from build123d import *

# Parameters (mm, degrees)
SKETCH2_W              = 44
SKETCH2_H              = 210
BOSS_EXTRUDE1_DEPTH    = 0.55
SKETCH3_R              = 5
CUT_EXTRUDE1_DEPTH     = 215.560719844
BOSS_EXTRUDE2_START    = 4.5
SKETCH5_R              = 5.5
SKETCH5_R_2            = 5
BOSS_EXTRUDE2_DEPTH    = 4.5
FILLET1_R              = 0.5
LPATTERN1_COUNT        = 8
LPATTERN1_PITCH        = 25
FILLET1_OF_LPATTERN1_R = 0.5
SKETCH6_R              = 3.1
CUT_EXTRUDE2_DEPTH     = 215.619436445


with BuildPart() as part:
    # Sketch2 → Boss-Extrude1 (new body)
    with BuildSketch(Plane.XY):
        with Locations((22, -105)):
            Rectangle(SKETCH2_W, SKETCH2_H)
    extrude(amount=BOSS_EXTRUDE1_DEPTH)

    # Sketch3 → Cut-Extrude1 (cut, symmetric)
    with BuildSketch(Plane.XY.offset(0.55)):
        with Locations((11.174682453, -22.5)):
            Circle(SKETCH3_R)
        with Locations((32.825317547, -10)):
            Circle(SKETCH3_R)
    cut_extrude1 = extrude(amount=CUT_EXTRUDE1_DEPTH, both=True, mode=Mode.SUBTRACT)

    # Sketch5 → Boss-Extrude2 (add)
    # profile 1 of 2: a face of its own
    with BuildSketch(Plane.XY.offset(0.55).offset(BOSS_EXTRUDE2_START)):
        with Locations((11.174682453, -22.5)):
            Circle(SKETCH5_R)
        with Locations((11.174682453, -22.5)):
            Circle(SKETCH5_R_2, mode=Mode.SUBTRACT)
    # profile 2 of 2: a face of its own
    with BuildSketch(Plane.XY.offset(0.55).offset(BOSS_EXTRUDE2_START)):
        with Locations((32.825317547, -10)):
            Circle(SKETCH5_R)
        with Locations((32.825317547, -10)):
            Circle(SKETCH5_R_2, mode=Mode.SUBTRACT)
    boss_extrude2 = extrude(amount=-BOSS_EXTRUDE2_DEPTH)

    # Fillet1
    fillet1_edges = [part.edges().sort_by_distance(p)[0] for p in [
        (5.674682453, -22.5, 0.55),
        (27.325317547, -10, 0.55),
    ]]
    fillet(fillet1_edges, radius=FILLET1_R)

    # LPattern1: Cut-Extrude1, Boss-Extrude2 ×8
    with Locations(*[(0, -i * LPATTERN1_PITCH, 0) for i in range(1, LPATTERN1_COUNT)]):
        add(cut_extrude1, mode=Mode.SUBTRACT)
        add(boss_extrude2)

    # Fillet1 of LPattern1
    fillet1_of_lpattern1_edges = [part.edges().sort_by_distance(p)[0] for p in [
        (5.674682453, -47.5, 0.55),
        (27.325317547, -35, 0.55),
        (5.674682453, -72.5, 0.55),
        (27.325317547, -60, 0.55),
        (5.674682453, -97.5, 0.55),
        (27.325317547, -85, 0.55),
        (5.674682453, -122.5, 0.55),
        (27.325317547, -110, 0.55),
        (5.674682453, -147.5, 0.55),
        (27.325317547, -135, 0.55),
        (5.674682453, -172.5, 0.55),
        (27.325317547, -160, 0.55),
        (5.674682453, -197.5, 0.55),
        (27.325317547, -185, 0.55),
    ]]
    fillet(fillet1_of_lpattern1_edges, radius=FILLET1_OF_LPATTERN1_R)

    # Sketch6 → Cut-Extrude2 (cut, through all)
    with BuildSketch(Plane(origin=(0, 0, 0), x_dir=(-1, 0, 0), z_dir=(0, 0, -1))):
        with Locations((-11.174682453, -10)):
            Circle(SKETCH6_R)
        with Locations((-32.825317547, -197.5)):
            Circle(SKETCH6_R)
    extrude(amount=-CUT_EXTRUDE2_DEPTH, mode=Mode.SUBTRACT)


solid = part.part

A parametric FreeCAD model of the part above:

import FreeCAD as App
import Part
import Sketcher


def edges_at(feature, points):
    """Names of the edges that pass closest to the given points."""
    edges = feature.Shape.Edges
    near = lambda p: min(range(len(edges)), key=lambda i: edges[i].distToShape(Part.Vertex(*p))[0])
    return sorted({f"Edge{near(p) + 1}" for p in points})


def add_polygon(sketch, points):
    """Adds a closed chain of lines whose ends are joined by coincident constraints."""
    first, n = sketch.GeometryCount, len(points)
    for a, b in zip(points, points[1:] + points[:1]):
        sketch.addGeometry(Part.LineSegment(App.Vector(*a, 0), App.Vector(*b, 0)), False)
    for i in range(n):
        sketch.addConstraint(Sketcher.Constraint("Coincident", first + i, 2, first + (i + 1) % n, 1))

doc = App.newDocument("Part")
body = doc.addObject("PartDesign::Body", "Body")

# Sketch on XY plane
sketch1 = body.newObject("Sketcher::SketchObject", "Sketch")
sketch1.AttachmentSupport = (doc.getObject("XY_Plane"), [""])
sketch1.MapMode = "FlatFace"
add_polygon(sketch1, [(0, 0), (0, -210), (44, -210), (44, 0)])  # lines 0-3
sketch1.addConstraint(Sketcher.Constraint("Vertical", 0))
sketch1.addConstraint(Sketcher.Constraint("Horizontal", 1))
sketch1.addConstraint(Sketcher.Constraint("Vertical", 2))
sketch1.addConstraint(Sketcher.Constraint("Horizontal", 3))
sketch1.addConstraint(Sketcher.Constraint("Coincident", 3, 2, -1, 1))
sketch1.addConstraint(Sketcher.Constraint("DistanceX", 1, 1, 1, 2, 44.0))
sketch1.addConstraint(Sketcher.Constraint("DistanceY", 0, 2, 0, 1, 210.0))
pad1 = body.newObject("PartDesign::Pad", "Pad")
pad1.Profile = sketch1
pad1.Length = 0.55

# Sketch on XY plane
sketch2 = body.newObject("Sketcher::SketchObject", "Sketch001")
sketch2.AttachmentSupport = (doc.getObject("XY_Plane"), [""])
sketch2.MapMode = "FlatFace"
sketch2.AttachmentOffset = App.Placement(App.Vector(0, 0, 0.55), App.Rotation())
sketch2.addGeometry(Part.Circle(App.Vector(11, -22, 0), App.Vector(0, 0, 1), 5), False)
sketch2.addGeometry(Part.Circle(App.Vector(33, -10, 0), App.Vector(0, 0, 1), 5), False)
sketch2.addConstraint(Sketcher.Constraint("Equal", 0, 1))
sketch2.addConstraint(Sketcher.Constraint("Diameter", 0, 10.0))
sketch2.addConstraint(Sketcher.Constraint("DistanceY", 1, 3, -1, 1, 10.0))
sketch2.addConstraint(Sketcher.Constraint("DistanceY", 0, 3, -1, 1, 22.5))
sketch2.addConstraint(Sketcher.Constraint("DistanceX", -1, 1, 0, 3, 11.174682))
sketch2.addConstraint(Sketcher.Constraint("DistanceX", -1, 1, 1, 3, 32.825318))
pocket1 = body.newObject("PartDesign::Pocket", "Pocket")
pocket1.Profile = sketch2
pocket1.Length = 431.12144
pocket1.Midplane = True

# Sketch on XY plane
sketch3 = body.newObject("Sketcher::SketchObject", "Sketch002")
sketch3.AttachmentSupport = (doc.getObject("XY_Plane"), [""])
sketch3.MapMode = "FlatFace"
sketch3.AttachmentOffset = App.Placement(App.Vector(0, 0, 5.05), App.Rotation())
sketch3.addGeometry(Part.Circle(App.Vector(11, -22, 0), App.Vector(0, 0, 1), 6), False)
sketch3.addGeometry(Part.Circle(App.Vector(11, -22, 0), App.Vector(0, 0, 1), 5), False)
sketch3.addGeometry(Part.Circle(App.Vector(33, -10, 0), App.Vector(0, 0, 1), 6), False)
sketch3.addGeometry(Part.Circle(App.Vector(33, -10, 0), App.Vector(0, 0, 1), 5), False)
sketch3.addConstraint(Sketcher.Constraint("Coincident", 1, 3, 0, 3))
sketch3.addConstraint(Sketcher.Constraint("Coincident", 3, 3, 2, 3))
sketch3.addConstraint(Sketcher.Constraint("Equal", 0, 2))
sketch3.addConstraint(Sketcher.Constraint("Equal", 1, 3))
sketch3.addConstraint(Sketcher.Constraint("Diameter", 0, 11.0))
sketch3.addConstraint(Sketcher.Constraint("Diameter", 1, 10.0))
sketch3.addConstraint(Sketcher.Constraint("DistanceY", 2, 3, -1, 1, 10.0))
sketch3.addConstraint(Sketcher.Constraint("DistanceY", 0, 3, -1, 1, 22.5))
sketch3.addConstraint(Sketcher.Constraint("DistanceX", -1, 1, 0, 3, 11.174682))
sketch3.addConstraint(Sketcher.Constraint("DistanceX", -1, 1, 2, 3, 32.825318))
pad2 = body.newObject("PartDesign::Pad", "Pad001")
pad2.Profile = sketch3
pad2.Length = 4.5
pad2.Reversed = True
doc.recompute()

fillet = body.newObject("PartDesign::Fillet", "Fillet")
fillet.Base = (pad2, edges_at(pad2, [(5.675, -22.5, 0.55), (27.325, -10, 0.55)]))
fillet.Radius = 0.5
doc.recompute()

linearpattern = body.newObject("PartDesign::LinearPattern", "LinearPattern")
linearpattern.Originals = [pocket1, pad2]
linearpattern.Direction = (doc.getObject("Y_Axis"), [""])
linearpattern.Mode = "offset"
linearpattern.Offset = 25
linearpattern.Occurrences = 8
linearpattern.Reversed = True
body.Tip = linearpattern
doc.recompute()

fillet2 = body.newObject("PartDesign::Fillet", "Fillet001")
fillet2.Base = (linearpattern, edges_at(linearpattern, [
    (5.675, -47.5, 0.55),
    (27.325, -35, 0.55),
    (5.675, -72.5, 0.55),
    (27.325, -60, 0.55),
    (5.675, -97.5, 0.55),
    (27.325, -85, 0.55),
    (5.675, -122.5, 0.55),
    (27.325, -110, 0.55),
    (5.675, -147.5, 0.55),
    (27.325, -135, 0.55),
    (5.675, -172.5, 0.55),
    (27.325, -160, 0.55),
    (5.675, -197.5, 0.55),
    (27.325, -185, 0.55),
]))
fillet2.Radius = 0.5

# Sketch on XY plane
sketch4 = body.newObject("Sketcher::SketchObject", "Sketch003")
sketch4.AttachmentSupport = (doc.getObject("XY_Plane"), [""])
sketch4.MapMode = "FlatFace"
sketch4.addGeometry(Part.Circle(App.Vector(11.2, -10, 0), App.Vector(0, 0, 1), 3.1), False)
sketch4.addGeometry(Part.Circle(App.Vector(32.8, -197.5, 0), App.Vector(0, 0, 1), 3.1), False)
sketch4.addConstraint(Sketcher.Constraint("Equal", 0, 1))
sketch4.addConstraint(Sketcher.Constraint("Diameter", 0, 6.2))
sketch4.addConstraint(Sketcher.Constraint("DistanceY", 0, 3, -1, 1, 10.0))
sketch4.addConstraint(Sketcher.Constraint("DistanceY", 1, 3, -1, 1, 197.5))
sketch4.addConstraint(Sketcher.Constraint("DistanceX", -1, 1, 0, 3, 11.174682))
sketch4.addConstraint(Sketcher.Constraint("DistanceX", -1, 1, 1, 3, 32.825318))
pocket2 = body.newObject("PartDesign::Pocket", "Pocket001")
pocket2.Profile = sketch4
pocket2.Type = "ThroughAll"
pocket2.Reversed = True

doc.recompute()
